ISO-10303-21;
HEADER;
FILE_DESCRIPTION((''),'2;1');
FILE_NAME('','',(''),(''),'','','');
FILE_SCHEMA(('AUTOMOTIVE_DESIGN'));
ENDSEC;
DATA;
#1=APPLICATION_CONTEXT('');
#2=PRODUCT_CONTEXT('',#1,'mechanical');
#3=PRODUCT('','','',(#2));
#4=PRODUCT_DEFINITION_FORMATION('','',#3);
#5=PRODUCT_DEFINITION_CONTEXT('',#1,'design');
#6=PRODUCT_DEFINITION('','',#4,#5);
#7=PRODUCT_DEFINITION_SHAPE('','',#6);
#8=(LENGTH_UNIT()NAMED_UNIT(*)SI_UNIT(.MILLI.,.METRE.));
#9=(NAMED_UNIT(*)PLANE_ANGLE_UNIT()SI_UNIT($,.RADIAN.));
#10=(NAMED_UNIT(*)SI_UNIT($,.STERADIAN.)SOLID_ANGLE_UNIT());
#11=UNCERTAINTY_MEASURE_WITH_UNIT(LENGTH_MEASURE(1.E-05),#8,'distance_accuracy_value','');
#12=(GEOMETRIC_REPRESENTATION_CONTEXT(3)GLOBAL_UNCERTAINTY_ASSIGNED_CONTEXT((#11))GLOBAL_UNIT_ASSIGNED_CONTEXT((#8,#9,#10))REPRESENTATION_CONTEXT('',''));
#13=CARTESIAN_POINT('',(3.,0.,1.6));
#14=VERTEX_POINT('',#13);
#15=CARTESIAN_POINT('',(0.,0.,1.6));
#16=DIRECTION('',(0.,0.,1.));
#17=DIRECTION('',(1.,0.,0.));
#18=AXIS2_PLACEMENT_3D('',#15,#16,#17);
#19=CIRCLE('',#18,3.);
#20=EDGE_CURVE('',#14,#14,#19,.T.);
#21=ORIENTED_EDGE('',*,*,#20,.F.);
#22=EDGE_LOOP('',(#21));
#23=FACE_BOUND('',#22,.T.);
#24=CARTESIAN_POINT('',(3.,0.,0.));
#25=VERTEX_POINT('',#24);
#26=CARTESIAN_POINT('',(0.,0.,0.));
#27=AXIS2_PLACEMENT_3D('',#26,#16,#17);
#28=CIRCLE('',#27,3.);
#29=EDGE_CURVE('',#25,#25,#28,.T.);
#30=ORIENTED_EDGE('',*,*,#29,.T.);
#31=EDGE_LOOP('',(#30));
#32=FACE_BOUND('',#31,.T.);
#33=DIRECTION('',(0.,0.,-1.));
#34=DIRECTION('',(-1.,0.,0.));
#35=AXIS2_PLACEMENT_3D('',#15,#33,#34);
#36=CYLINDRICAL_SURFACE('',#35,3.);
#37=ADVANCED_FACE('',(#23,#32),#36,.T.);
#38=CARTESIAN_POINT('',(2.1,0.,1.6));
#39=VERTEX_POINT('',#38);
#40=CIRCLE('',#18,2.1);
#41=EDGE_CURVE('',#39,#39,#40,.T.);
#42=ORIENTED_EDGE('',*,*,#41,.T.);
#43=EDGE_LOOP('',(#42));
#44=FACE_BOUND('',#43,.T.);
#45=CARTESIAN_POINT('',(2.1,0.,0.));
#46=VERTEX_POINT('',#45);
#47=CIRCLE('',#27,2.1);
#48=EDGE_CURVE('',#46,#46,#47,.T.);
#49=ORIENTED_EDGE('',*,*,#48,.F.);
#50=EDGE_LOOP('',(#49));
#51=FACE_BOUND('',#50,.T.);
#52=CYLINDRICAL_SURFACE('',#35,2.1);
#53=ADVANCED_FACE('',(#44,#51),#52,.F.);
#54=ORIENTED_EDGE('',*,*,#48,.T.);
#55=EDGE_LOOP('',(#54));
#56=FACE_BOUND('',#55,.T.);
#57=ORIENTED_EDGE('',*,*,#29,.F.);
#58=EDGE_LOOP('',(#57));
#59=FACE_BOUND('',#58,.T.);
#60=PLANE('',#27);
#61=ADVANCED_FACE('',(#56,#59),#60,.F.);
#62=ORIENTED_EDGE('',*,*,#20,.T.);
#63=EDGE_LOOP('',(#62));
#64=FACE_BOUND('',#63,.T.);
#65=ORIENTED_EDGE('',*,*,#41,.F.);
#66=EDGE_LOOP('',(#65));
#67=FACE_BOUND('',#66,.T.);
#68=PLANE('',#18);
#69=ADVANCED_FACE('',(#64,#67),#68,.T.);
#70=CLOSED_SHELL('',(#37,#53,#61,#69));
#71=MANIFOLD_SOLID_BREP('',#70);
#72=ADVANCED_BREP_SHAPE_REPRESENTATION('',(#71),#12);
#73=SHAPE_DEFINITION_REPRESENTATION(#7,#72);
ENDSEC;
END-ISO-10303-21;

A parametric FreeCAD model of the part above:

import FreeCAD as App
import Part
import Sketcher

V = App.Vector
Q = App.Units.Quantity

doc = App.newDocument("Part")
body = doc.addObject("PartDesign::Body", "Body")

# Sketch on XY plane
sketch1 = body.newObject("Sketcher::SketchObject", "Sketch")
sketch1.AttachmentSupport = (doc.getObject("XY_Plane"), [""])
sketch1.MapMode = "FlatFace"
sketch1.addGeometry(Part.Circle(V(0, 0, 0), V(0, 0, 1), 3), False)
sketch1.addGeometry(Part.Circle(V(0, 0, 0), V(0, 0, 1), 2.1), False)
sketch1.addConstraint(Sketcher.Constraint("Coincident", 0, 3, -1, 1))
sketch1.addConstraint(Sketcher.Constraint("Coincident", 1, 3, -1, 1))
sketch1.addConstraint(Sketcher.Constraint("Diameter", 0, Q("6 mm")))
sketch1.addConstraint(Sketcher.Constraint("Diameter", 1, Q("4.2 mm")))
pad1 = body.newObject("PartDesign::Pad", "Pad")
pad1.Profile = sketch1
pad1.Length = 1.6

doc.recompute()
